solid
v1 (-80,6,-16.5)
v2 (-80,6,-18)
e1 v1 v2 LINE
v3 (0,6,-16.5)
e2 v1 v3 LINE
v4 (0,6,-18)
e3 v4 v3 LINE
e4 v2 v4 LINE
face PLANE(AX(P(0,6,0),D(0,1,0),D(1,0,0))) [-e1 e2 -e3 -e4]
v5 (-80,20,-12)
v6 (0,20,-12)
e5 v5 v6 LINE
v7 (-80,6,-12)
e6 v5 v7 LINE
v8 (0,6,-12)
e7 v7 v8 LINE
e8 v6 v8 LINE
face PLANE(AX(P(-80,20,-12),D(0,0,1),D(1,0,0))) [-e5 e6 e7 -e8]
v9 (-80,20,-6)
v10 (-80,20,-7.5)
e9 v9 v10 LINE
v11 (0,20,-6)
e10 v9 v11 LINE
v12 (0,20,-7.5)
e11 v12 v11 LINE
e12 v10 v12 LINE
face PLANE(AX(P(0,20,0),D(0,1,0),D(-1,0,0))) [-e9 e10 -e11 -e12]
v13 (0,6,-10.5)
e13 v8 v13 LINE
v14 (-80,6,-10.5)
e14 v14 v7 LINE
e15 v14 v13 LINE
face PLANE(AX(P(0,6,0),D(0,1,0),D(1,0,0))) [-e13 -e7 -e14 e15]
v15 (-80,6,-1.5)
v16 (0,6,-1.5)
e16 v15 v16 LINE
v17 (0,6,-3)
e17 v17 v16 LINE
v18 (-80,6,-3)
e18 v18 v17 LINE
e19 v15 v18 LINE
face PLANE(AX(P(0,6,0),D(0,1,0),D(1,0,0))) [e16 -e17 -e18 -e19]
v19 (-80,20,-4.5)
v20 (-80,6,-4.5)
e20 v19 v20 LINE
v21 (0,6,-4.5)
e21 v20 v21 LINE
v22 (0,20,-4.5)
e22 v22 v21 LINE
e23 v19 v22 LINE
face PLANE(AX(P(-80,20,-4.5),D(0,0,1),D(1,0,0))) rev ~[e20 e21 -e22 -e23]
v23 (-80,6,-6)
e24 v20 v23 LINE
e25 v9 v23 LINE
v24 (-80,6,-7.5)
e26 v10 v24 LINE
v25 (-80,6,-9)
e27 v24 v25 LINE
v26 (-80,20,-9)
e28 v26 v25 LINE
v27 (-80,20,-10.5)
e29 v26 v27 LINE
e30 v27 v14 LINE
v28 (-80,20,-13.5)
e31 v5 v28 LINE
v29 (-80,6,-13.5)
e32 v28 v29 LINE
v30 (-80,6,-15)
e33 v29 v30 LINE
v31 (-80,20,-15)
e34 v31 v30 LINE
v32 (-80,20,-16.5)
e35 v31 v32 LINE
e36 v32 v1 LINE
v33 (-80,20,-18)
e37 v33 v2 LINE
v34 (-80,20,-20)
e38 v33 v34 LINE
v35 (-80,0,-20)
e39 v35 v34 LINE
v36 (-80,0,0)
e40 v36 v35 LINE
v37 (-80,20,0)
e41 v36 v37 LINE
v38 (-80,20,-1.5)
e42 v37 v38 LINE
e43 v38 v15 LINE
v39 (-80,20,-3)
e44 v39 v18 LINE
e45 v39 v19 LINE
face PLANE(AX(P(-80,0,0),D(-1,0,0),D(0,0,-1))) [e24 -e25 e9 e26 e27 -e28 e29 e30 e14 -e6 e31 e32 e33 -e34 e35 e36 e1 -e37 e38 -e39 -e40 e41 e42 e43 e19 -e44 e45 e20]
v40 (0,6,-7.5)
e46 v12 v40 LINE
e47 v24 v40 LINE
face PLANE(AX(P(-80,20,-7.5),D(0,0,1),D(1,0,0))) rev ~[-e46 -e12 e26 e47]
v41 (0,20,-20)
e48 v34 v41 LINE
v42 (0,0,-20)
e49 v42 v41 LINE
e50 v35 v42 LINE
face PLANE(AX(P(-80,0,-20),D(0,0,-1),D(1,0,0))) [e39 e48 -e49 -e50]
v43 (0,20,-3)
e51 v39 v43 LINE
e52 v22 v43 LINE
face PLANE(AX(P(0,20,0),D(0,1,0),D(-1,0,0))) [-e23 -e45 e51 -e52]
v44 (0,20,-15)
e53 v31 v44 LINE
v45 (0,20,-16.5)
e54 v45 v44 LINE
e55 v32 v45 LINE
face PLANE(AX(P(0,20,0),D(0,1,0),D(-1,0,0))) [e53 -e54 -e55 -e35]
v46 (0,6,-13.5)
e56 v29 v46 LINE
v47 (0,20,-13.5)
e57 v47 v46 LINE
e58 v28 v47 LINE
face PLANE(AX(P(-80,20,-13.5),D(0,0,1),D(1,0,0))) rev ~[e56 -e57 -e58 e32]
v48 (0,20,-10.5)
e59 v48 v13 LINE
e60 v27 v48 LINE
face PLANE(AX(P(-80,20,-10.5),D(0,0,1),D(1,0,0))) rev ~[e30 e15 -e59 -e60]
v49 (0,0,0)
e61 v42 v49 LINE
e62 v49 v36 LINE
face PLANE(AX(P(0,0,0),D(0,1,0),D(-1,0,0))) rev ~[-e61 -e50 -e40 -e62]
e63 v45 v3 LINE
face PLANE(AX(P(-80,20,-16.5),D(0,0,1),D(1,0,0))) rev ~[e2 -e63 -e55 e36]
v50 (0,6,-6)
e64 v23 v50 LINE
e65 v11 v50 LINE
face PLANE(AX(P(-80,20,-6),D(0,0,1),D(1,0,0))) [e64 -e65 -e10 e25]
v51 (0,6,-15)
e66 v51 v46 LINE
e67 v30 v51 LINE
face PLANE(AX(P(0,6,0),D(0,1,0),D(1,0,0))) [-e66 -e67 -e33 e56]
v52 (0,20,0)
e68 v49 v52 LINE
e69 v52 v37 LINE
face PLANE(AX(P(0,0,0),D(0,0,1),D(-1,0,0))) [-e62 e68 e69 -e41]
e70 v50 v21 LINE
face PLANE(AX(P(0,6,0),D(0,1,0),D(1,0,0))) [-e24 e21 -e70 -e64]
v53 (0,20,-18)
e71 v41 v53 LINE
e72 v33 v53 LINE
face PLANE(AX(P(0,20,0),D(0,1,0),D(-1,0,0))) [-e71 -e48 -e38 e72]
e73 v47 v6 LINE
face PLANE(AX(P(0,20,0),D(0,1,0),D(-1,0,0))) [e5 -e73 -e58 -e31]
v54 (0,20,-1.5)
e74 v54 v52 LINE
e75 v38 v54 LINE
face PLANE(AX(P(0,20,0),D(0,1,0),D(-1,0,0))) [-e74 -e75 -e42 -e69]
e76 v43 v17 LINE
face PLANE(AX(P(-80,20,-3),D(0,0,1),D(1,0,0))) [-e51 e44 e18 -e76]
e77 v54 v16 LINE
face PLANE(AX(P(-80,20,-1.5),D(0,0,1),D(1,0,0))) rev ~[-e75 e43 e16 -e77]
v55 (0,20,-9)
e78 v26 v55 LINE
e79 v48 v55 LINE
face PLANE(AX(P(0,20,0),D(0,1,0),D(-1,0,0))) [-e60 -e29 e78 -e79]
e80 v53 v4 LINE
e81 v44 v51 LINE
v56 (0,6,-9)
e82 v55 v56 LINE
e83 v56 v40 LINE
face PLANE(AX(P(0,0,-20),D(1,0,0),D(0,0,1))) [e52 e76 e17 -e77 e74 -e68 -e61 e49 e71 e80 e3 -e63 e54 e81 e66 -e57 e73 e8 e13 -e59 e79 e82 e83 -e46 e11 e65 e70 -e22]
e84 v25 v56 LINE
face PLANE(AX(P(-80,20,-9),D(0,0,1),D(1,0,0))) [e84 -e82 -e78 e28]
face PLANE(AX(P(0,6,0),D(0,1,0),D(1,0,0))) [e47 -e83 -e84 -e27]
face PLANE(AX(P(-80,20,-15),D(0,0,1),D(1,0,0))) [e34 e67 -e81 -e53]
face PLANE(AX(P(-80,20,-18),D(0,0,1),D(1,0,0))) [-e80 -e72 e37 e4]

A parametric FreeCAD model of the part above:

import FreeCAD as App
import Part
import Sketcher
from FreeCAD import Vector
Q = App.Units.Quantity

doc = App.newDocument("Part")
body = doc.addObject("PartDesign::Body", "Body")

sketch1 = body.newObject("Sketcher::SketchObject", "Sketch")
sketch1.AttachmentSupport = (doc.getObject("XZ_Plane"), [""])
sketch1.MapMode = "FlatFace"
sketch1.addGeometry([
    Part.LineSegment(Vector(-80, 0, 0), Vector(0, 0, 0)),
    Part.LineSegment(Vector(0, 0, 0), Vector(0, -20, 0)),
    Part.LineSegment(Vector(0, -20, 0), Vector(-80, -20, 0)),
    Part.LineSegment(Vector(-80, -20, 0), Vector(-80, 0, 0)),
], False)
sketch1.addConstraint([
    Sketcher.Constraint("Coincident", 0, 2, 1, 1),
    Sketcher.Constraint("Coincident", 1, 2, 2, 1),
    Sketcher.Constraint("Coincident", 2, 2, 3, 1),
    Sketcher.Constraint("Coincident", 3, 2, 0, 1),
    Sketcher.Constraint("Horizontal", 0),
    Sketcher.Constraint("Vertical", 1),
    Sketcher.Constraint("Horizontal", 2),
    Sketcher.Constraint("Vertical", 3),
    Sketcher.Constraint("Coincident", 0, 2, -1, 1),
    Sketcher.Constraint("DistanceX", 0, 1, 0, 2, Q("80 mm")),
    Sketcher.Constraint("DistanceY", 1, 2, 1, 1, Q("20 mm")),
])
pad1 = body.newObject("PartDesign::Pad", "Pad")
pad1.Profile = sketch1
pad1.Length = 20
pad1.Reversed = True

sketch2 = body.newObject("Sketcher::SketchObject", "Sketch001")
sketch2.AttachmentSupport = (doc.getObject("XZ_Plane"), [""])
sketch2.MapMode = "FlatFace"
sketch2.AttachmentOffset = App.Placement(Vector(0, 0, -20), App.Rotation())
sketch2.addGeometry([
    Part.LineSegment(Vector(-80, -3, 0), Vector(-80, -1.5, 0)),
    Part.LineSegment(Vector(-80, -1.5, 0), Vector(0, -1.5, 0)),
    Part.LineSegment(Vector(0, -1.5, 0), Vector(0, -3, 0)),
    Part.LineSegment(Vector(0, -3, 0), Vector(-80, -3, 0)),
    Part.LineSegment(Vector(-80, -6, 0), Vector(-80, -4.5, 0)),
    Part.LineSegment(Vector(-80, -4.5, 0), Vector(0, -4.5, 0)),
    Part.LineSegment(Vector(0, -4.5, 0), Vector(0, -6, 0)),
    Part.LineSegment(Vector(0, -6, 0), Vector(-80, -6, 0)),
    Part.LineSegment(Vector(-80, -9, 0), Vector(-80, -7.5, 0)),
    Part.LineSegment(Vector(-80, -7.5, 0), Vector(0, -7.5, 0)),
    Part.LineSegment(Vector(0, -7.5, 0), Vector(0, -9, 0)),
    Part.LineSegment(Vector(0, -9, 0), Vector(-80, -9, 0)),
    Part.LineSegment(Vector(-80, -12, 0), Vector(-80, -10.5, 0)),
    Part.LineSegment(Vector(-80, -10.5, 0), Vector(0, -10.5, 0)),
    Part.LineSegment(Vector(0, -10.5, 0), Vector(0, -12, 0)),
    Part.LineSegment(Vector(0, -12, 0), Vector(-80, -12, 0)),
    Part.LineSegment(Vector(-80, -15, 0), Vector(-80, -13.5, 0)),
    Part.LineSegment(Vector(-80, -13.5, 0), Vector(0, -13.5, 0)),
    Part.LineSegment(Vector(0, -13.5, 0), Vector(0, -15, 0)),
    Part.LineSegment(Vector(0, -15, 0), Vector(-80, -15, 0)),
    Part.LineSegment(Vector(-80, -18, 0), Vector(-80, -16.5, 0)),
    Part.LineSegment(Vector(-80, -16.5, 0), Vector(0, -16.5, 0)),
    Part.LineSegment(Vector(0, -16.5, 0), Vector(0, -18, 0)),
    Part.LineSegment(Vector(0, -18, 0), Vector(-80, -18, 0)),
], False)
sketch2.addConstraint([
    Sketcher.Constraint("Coincident", 0, 2, 1, 1),
    Sketcher.Constraint("Coincident", 1, 2, 2, 1),
    Sketcher.Constraint("Coincident", 2, 2, 3, 1),
    Sketcher.Constraint("Coincident", 3, 2, 0, 1),
    Sketcher.Constraint("Coincident", 4, 2, 5, 1),
    Sketcher.Constraint("Coincident", 5, 2, 6, 1),
    Sketcher.Constraint("Coincident", 6, 2, 7, 1),
    Sketcher.Constraint("Coincident", 7, 2, 4, 1),
    Sketcher.Constraint("Coincident", 8, 2, 9, 1),
    Sketcher.Constraint("Coincident", 9, 2, 10, 1),
    Sketcher.Constraint("Coincident", 10, 2, 11, 1),
    Sketcher.Constraint("Coincident", 11, 2, 8, 1),
    Sketcher.Constraint("Coincident", 12, 2, 13, 1),
    Sketcher.Constraint("Coincident", 13, 2, 14, 1),
    Sketcher.Constraint("Coincident", 14, 2, 15, 1),
    Sketcher.Constraint("Coincident", 15, 2, 12, 1),
    Sketcher.Constraint("Coincident", 16, 2, 17, 1),
    Sketcher.Constraint("Coincident", 17, 2, 18, 1),
    Sketcher.Constraint("Coincident", 18, 2, 19, 1),
    Sketcher.Constraint("Coincident", 19, 2, 16, 1),
    Sketcher.Constraint("Coincident", 20, 2, 21, 1),
    Sketcher.Constraint("Coincident", 21, 2, 22, 1),
    Sketcher.Constraint("Coincident", 22, 2, 23, 1),
    Sketcher.Constraint("Coincident", 23, 2, 20, 1),
    Sketcher.Constraint("Vertical", 0),
    Sketcher.Constraint("Horizontal", 1),
    Sketcher.Constraint("Vertical", 2),
    Sketcher.Constraint("Horizontal", 3),
    Sketcher.Constraint("Vertical", 4),
    Sketcher.Constraint("Horizontal", 5),
    Sketcher.Constraint("Vertical", 6),
    Sketcher.Constraint("Horizontal", 7),
    Sketcher.Constraint("Vertical", 8),
    Sketcher.Constraint("Horizontal", 9),
    Sketcher.Constraint("Vertical", 10),
    Sketcher.Constraint("Horizontal", 11),
    Sketcher.Constraint("Vertical", 12),
    Sketcher.Constraint("Horizontal", 13),
    Sketcher.Constraint("Vertical", 14),
    Sketcher.Constraint("Horizontal", 15),
    Sketcher.Constraint("Vertical", 16),
    Sketcher.Constraint("Horizontal", 17),
    Sketcher.Constraint("Vertical", 18),
    Sketcher.Constraint("Horizontal", 19),
    Sketcher.Constraint("Vertical", 20),
    Sketcher.Constraint("Horizontal", 21),
    Sketcher.Constraint("Vertical", 22),
    Sketcher.Constraint("Horizontal", 23),
    Sketcher.Constraint("PointOnObject", 1, 2, -2),
    Sketcher.Constraint("PointOnObject", 5, 2, -2),
    Sketcher.Constraint("PointOnObject", 9, 2, -2),
    Sketcher.Constraint("PointOnObject", 13, 2, -2),
    Sketcher.Constraint("PointOnObject", 17, 2, -2),
    Sketcher.Constraint("PointOnObject", 21, 2, -2),
    Sketcher.Constraint("Vertical", 3, 2, 4, 2),
    Sketcher.Constraint("Vertical", 7, 2, 8, 2),
    Sketcher.Constraint("Vertical", 11, 2, 12, 2),
    Sketcher.Constraint("Vertical", 15, 2, 16, 2),
    Sketcher.Constraint("Vertical", 19, 2, 20, 2),
    Sketcher.Constraint("Equal", 2, 4),
    Sketcher.Constraint("Equal", 6, 8),
    Sketcher.Constraint("Equal", 10, 12),
    Sketcher.Constraint("Equal", 14, 16),
    Sketcher.Constraint("Equal", 18, 20),
    Sketcher.Constraint("DistanceX", 1, 1, 1, 2, Q("80 mm")),
    Sketcher.Constraint("DistanceY", 0, 1, 0, 2, Q("1.5 mm")),
    Sketcher.Constraint("DistanceY", 0, 2, -1, 1, Q("1.5 mm")),
    Sketcher.Constraint("DistanceY", 4, 2, 3, 2, Q("1.5 mm")),
    Sketcher.Constraint("DistanceY", 8, 2, 7, 2, Q("1.5 mm")),
    Sketcher.Constraint("DistanceY", 12, 2, 11, 2, Q("1.5 mm")),
    Sketcher.Constraint("DistanceY", 16, 2, 15, 2, Q("1.5 mm")),
    Sketcher.Constraint("DistanceY", 20, 2, 19, 2, Q("1.5 mm")),
])
pocket1 = body.newObject("PartDesign::Pocket", "Pocket")
pocket1.Profile = sketch2
pocket1.Length = 14
pocket1.Reversed = True

doc.recompute()
